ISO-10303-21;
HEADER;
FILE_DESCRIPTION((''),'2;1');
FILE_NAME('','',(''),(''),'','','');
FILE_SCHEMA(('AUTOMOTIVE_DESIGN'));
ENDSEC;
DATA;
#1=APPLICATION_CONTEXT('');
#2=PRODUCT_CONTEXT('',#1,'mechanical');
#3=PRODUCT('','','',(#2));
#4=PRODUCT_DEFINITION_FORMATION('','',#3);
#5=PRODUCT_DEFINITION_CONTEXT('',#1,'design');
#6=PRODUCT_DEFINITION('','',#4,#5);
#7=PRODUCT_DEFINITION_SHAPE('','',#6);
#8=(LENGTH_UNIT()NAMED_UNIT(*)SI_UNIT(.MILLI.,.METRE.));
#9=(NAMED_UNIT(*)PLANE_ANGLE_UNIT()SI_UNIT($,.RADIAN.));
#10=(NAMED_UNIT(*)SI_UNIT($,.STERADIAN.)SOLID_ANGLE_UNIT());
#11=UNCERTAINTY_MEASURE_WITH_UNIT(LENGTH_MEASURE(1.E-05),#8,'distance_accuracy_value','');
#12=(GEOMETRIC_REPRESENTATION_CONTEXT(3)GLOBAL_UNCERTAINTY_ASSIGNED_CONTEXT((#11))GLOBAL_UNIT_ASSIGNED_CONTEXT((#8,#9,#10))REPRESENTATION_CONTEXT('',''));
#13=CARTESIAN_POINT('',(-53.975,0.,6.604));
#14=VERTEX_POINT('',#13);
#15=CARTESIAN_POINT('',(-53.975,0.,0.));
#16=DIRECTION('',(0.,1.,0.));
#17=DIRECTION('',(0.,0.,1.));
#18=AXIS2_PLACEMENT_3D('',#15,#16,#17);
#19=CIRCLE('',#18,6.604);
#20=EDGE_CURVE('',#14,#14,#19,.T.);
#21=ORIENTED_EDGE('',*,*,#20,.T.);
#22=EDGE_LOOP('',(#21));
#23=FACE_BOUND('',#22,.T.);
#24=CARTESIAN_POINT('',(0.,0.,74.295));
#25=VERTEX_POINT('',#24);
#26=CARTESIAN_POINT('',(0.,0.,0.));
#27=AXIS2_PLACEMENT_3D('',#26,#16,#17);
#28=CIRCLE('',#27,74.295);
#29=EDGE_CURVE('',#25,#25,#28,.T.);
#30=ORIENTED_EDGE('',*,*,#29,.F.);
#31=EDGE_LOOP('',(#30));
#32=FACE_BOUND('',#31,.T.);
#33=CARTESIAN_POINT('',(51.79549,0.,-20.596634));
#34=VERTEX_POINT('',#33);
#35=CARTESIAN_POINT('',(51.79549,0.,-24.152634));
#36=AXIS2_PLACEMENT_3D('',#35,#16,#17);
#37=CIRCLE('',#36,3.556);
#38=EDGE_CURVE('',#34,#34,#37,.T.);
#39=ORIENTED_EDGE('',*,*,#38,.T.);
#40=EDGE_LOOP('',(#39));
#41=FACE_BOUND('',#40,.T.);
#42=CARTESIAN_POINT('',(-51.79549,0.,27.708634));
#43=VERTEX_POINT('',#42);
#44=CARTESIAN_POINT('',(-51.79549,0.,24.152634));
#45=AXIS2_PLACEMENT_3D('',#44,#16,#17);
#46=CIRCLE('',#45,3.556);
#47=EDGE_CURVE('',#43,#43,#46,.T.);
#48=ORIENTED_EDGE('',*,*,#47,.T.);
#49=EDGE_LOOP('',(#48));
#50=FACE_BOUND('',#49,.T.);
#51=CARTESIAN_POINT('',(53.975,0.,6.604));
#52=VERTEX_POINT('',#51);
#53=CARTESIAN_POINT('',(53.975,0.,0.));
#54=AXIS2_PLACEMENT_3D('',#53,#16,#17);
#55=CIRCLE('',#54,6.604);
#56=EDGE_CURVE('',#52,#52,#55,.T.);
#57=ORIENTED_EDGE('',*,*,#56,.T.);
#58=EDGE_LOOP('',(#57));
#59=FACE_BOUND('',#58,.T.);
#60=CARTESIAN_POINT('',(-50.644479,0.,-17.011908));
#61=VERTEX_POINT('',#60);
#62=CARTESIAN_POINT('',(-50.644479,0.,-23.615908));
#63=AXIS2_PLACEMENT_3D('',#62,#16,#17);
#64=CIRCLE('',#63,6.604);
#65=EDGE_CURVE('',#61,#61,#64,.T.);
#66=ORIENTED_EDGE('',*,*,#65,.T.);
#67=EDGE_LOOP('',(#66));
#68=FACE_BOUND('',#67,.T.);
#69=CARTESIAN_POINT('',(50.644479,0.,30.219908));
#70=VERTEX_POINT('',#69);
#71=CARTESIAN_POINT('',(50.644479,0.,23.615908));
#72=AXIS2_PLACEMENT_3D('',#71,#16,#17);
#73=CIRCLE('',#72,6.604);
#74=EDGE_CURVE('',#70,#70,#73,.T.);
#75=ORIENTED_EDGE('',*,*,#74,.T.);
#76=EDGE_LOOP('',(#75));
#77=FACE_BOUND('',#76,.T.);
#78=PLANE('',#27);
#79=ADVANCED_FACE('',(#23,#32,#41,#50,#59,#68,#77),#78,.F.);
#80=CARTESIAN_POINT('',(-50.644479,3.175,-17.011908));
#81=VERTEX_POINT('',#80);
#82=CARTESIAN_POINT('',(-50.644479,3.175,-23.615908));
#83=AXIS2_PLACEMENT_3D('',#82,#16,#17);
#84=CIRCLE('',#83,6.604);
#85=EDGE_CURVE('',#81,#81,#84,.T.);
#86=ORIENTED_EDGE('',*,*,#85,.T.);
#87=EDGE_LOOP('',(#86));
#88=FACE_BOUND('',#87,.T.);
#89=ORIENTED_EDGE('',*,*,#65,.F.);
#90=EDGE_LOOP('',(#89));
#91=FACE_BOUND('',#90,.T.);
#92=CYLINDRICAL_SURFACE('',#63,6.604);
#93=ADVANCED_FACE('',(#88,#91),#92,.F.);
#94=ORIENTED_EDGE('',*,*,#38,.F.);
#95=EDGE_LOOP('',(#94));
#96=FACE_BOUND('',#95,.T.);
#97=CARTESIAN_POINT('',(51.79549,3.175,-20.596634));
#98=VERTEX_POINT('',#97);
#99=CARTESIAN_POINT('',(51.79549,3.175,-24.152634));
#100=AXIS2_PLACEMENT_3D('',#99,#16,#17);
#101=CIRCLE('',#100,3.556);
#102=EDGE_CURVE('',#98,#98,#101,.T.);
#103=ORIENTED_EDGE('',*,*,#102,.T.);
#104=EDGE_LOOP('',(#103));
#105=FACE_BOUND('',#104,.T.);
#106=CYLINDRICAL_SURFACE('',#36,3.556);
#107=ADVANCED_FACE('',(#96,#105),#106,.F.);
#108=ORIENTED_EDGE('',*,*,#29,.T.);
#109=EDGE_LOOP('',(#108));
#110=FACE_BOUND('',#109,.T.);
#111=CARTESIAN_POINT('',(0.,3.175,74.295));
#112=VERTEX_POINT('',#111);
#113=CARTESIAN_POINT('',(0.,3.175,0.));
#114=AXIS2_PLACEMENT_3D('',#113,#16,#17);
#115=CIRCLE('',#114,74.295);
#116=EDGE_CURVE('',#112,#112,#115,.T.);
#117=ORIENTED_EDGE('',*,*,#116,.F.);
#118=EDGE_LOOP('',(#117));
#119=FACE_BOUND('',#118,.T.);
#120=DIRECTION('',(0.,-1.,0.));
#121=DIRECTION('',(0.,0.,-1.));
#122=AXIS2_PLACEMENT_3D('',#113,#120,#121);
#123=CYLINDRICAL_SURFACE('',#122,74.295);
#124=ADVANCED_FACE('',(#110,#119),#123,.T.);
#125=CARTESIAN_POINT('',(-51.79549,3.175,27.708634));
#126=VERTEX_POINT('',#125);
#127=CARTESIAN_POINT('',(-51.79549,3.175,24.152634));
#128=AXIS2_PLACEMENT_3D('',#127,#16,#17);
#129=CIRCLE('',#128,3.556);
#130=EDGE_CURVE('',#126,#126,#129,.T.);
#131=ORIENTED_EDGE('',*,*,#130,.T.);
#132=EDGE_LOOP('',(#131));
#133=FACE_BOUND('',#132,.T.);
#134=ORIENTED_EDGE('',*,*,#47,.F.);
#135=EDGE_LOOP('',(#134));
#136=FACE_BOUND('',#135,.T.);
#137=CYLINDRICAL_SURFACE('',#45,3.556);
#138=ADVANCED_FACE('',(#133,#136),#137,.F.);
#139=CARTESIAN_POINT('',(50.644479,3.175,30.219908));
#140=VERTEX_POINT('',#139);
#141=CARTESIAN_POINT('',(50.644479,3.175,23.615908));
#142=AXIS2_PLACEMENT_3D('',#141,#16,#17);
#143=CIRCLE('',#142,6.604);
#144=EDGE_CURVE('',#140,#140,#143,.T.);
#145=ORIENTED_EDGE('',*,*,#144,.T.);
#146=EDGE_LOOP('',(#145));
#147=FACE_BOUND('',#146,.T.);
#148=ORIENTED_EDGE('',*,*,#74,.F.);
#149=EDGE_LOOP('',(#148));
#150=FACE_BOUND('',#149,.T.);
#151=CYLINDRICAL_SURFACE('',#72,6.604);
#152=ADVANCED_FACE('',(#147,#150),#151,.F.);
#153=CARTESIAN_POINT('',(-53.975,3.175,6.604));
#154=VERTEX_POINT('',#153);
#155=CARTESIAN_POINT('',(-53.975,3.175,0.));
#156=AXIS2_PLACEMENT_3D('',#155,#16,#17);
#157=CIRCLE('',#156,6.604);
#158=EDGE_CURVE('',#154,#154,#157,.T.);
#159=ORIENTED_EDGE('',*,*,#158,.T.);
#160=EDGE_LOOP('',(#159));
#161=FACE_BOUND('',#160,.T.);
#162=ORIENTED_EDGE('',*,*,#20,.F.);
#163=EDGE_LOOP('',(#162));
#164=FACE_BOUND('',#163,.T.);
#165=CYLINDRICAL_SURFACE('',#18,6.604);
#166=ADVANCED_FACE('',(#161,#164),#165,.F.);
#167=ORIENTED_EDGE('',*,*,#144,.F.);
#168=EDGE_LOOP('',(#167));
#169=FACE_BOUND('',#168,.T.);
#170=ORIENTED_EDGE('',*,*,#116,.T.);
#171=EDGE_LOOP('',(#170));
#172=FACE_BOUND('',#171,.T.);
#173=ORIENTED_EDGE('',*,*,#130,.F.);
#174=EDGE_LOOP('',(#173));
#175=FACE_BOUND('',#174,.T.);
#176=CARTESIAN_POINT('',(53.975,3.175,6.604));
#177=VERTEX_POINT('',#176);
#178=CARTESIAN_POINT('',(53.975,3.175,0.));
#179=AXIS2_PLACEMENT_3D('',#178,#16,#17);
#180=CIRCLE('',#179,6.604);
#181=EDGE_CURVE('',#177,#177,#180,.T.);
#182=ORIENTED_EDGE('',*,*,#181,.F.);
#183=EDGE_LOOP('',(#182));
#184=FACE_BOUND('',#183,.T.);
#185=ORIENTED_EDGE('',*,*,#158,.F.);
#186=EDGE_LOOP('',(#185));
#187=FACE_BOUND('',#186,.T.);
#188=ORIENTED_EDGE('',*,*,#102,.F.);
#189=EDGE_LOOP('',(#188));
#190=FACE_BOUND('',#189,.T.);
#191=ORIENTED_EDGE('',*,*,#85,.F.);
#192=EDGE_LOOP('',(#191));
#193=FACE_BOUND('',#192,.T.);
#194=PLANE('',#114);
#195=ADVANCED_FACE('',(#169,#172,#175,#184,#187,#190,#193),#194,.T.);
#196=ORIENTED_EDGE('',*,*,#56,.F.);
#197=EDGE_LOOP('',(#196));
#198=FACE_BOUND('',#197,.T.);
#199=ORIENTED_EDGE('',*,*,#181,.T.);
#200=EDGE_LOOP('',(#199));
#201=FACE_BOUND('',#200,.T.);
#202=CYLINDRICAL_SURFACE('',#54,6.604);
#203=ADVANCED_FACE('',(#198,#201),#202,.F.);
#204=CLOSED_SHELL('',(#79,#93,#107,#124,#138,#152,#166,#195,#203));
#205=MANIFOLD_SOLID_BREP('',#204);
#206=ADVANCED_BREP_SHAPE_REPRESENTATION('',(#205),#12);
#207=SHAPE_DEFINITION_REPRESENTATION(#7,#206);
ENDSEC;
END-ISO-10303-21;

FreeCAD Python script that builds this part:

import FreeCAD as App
import Part
import Sketcher
Q = App.Units.Quantity

doc = App.newDocument("Part")
body = doc.addObject("PartDesign::Body", "Body")

sketch1 = doc.addObject("Sketcher::SketchObject", "Sketch")
body.addObject(sketch1)
sketch1.AttachmentSupport = (doc.XZ_Plane, [""])
sketch1.MapMode = "FlatFace"
sketch1.addGeometry(Part.Circle(App.Vector(0, 0, 0), App.Vector(0, 0, 1), 74.295), False)
sketch1.addConstraint([
    Sketcher.Constraint("Coincident", 0, 3, -1, 1),
    Sketcher.Constraint("Diameter", 0, Q("5.85 in")),
])
pad1 = doc.addObject("PartDesign::Pad", "Pad")
body.addObject(pad1)
pad1.Profile = sketch1
pad1.Length = Q("0.125 in")
pad1.Reversed = True

sketch2 = doc.addObject("Sketcher::SketchObject", "Sketch001")
body.addObject(sketch2)
sketch2.AttachmentSupport = (doc.XZ_Plane, [""])
sketch2.MapMode = "FlatFace"
sketch2.AttachmentOffset = App.Placement(App.Vector(0, 0, -0.125 * 25.4), App.Rotation())
sketch2.addGeometry([
    Part.Circle(App.Vector(-51.79549, 24.152634, 0), App.Vector(0, 0, 1), 3.556),
    Part.Circle(App.Vector(51.79549, -24.152634, 0), App.Vector(0, 0, 1), 3.556),
    Part.Circle(App.Vector(-53.975, 0, 0), App.Vector(0, 0, 1), 6.604),
    Part.Circle(App.Vector(53.975, 0, 0), App.Vector(0, 0, 1), 6.604),
    Part.Circle(App.Vector(50.644479, 23.615908, 0), App.Vector(0, 0, 1), 6.604),
    Part.Circle(App.Vector(-50.644479, -23.615908, 0), App.Vector(0, 0, 1), 6.604),
], False)
sketch2.addConstraint([
    Sketcher.Constraint("Equal", 0, 1),
    Sketcher.Constraint("Equal", 2, 3),
    Sketcher.Constraint("Equal", 3, 4),
    Sketcher.Constraint("Equal", 4, 5),
    Sketcher.Constraint("Symmetric", 0, 3, 1, 3, -1, 1),
    Sketcher.Constraint("Symmetric", 2, 3, 3, 3, -1, 1),
    Sketcher.Constraint("Symmetric", 4, 3, 5, 3, -1, 1),
    Sketcher.Constraint("PointOnObject", 2, 3, -1),
    Sketcher.Constraint("Diameter", 0, Q("0.28 in")),
    Sketcher.Constraint("Diameter", 2, Q("0.52 in")),
    Sketcher.Constraint("DistanceX", 2, 3, 3, 3, Q("4.25 in")),
    Sketcher.Constraint("DistanceX", 0, 3, -1, 1, Q("51.79549 mm")),
    Sketcher.Constraint("DistanceX", -1, 1, 4, 3, Q("50.644479 mm")),
    Sketcher.Constraint("DistanceY", -1, 1, 4, 3, Q("23.615908 mm")),
    Sketcher.Constraint("DistanceY", -1, 1, 0, 3, Q("24.152634 mm")),
])
pocket1 = doc.addObject("PartDesign::Pocket", "Pocket")
body.addObject(pocket1)
pocket1.Profile = sketch2
pocket1.Length = Q("0.125 in")
pocket1.Reversed = True

doc.recompute()
